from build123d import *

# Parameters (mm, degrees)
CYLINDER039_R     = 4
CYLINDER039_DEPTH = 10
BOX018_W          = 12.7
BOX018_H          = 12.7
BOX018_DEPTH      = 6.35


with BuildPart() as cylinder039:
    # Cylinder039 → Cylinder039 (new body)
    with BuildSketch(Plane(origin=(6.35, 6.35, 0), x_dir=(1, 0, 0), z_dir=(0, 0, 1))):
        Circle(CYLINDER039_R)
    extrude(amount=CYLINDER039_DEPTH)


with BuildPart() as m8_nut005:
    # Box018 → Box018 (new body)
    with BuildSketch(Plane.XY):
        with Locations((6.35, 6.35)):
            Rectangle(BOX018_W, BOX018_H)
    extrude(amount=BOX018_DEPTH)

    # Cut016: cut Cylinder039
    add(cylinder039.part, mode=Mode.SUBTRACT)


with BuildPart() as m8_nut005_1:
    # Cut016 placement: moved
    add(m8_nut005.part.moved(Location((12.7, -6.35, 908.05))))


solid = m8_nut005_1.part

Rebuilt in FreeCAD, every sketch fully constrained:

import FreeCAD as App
import Part
import Sketcher
Q = App.Units.Quantity

doc = App.newDocument("Part")
params = doc.addObject("Spreadsheet::Sheet", "Params")
for row, (alias, value) in enumerate([
    ("sketch1_diameter", "8 mm"),
    ("pad1_length", "10 mm"),
    ("sketch2_width", "12.7 mm"),
    ("pad2_length", "6.35 mm"),
], start=1):
    params.set(f"A{row}", alias)
    params.set(f"B{row}", "=" + value)
    params.setAlias(f"B{row}", alias)

body = doc.addObject("PartDesign::Body", "Body")

# Sketch on XY plane
sketch1 = doc.addObject("Sketcher::SketchObject", "Sketch")
body.addObject(sketch1)
sketch1.AttachmentSupport = (doc.XY_Plane, [""])
sketch1.MapMode = "FlatFace"
sketch1.addGeometry(Part.Circle(App.Vector(6.3, 6.3, 0), App.Vector(0, 0, 1), 4), False)
sketch1.addConstraint(Sketcher.Constraint("Diameter", 0, Q("8 mm")))
sketch1.addConstraint(Sketcher.Constraint("DistanceX", -1, 1, 0, 3, Q("6.35 mm")))
sketch1.addConstraint(Sketcher.Constraint("DistanceY", -1, 1, 0, 3, Q("6.35 mm")))
sketch1.setExpression("Constraints[0]", "Params.sketch1_diameter")
pad1 = doc.addObject("PartDesign::Pad", "Pad")
body.addObject(pad1)
pad1.Profile = sketch1
pad1.setExpression("Length", "Params.pad1_length")
body2 = doc.addObject("PartDesign::Body", "Body001")

# Sketch on XY plane
sketch2 = doc.addObject("Sketcher::SketchObject", "Sketch001")
body2.addObject(sketch2)
sketch2.AttachmentSupport = (doc.getObject("XY_Plane001"), [""])
sketch2.MapMode = "FlatFace"
sketch2.addGeometry(Part.LineSegment(App.Vector(0, 13, 0), App.Vector(0, 0, 0)), False)
sketch2.addGeometry(Part.LineSegment(App.Vector(0, 0, 0), App.Vector(13, 0, 0)), False)
sketch2.addGeometry(Part.LineSegment(App.Vector(13, 0, 0), App.Vector(13, 13, 0)), False)
sketch2.addGeometry(Part.LineSegment(App.Vector(13, 13, 0), App.Vector(0, 13, 0)), False)
sketch2.addConstraint(Sketcher.Constraint("Coincident", 0, 2, 1, 1))
sketch2.addConstraint(Sketcher.Constraint("Coincident", 1, 2, 2, 1))
sketch2.addConstraint(Sketcher.Constraint("Coincident", 2, 2, 3, 1))
sketch2.addConstraint(Sketcher.Constraint("Coincident", 3, 2, 0, 1))
sketch2.addConstraint(Sketcher.Constraint("Vertical", 0))
sketch2.addConstraint(Sketcher.Constraint("Horizontal", 1))
sketch2.addConstraint(Sketcher.Constraint("Vertical", 2))
sketch2.addConstraint(Sketcher.Constraint("Horizontal", 3))
sketch2.addConstraint(Sketcher.Constraint("Coincident", 0, 2, -1, 1))
sketch2.addConstraint(Sketcher.Constraint("Equal", 3, 0))
sketch2.addConstraint(Sketcher.Constraint("DistanceX", 1, 1, 1, 2, Q("12.7 mm")))
sketch2.setExpression("Constraints[10]", "Params.sketch2_width")
pad2 = doc.addObject("PartDesign::Pad", "Pad001")
body2.addObject(pad2)
pad2.Profile = sketch2
pad2.setExpression("Length", "Params.pad2_length")
doc.recompute()

boolean = doc.addObject("PartDesign::Boolean", "Boolean")
body2.addObject(boolean)
boolean.Type = "Cut"
boolean.addObjects([body])
body3 = doc.addObject("PartDesign::Body", "Body002")
doc.recompute()

body2.Placement = App.Placement(App.Vector(12.7, -6.35, 908.05), App.Rotation(App.Vector(0, 0, 1), 0))
boolean2 = doc.addObject("PartDesign::Boolean", "Boolean001")
body3.addObject(boolean2)
boolean2.Type = "Fuse"
boolean2.addObjects([body2])

doc.recompute()
